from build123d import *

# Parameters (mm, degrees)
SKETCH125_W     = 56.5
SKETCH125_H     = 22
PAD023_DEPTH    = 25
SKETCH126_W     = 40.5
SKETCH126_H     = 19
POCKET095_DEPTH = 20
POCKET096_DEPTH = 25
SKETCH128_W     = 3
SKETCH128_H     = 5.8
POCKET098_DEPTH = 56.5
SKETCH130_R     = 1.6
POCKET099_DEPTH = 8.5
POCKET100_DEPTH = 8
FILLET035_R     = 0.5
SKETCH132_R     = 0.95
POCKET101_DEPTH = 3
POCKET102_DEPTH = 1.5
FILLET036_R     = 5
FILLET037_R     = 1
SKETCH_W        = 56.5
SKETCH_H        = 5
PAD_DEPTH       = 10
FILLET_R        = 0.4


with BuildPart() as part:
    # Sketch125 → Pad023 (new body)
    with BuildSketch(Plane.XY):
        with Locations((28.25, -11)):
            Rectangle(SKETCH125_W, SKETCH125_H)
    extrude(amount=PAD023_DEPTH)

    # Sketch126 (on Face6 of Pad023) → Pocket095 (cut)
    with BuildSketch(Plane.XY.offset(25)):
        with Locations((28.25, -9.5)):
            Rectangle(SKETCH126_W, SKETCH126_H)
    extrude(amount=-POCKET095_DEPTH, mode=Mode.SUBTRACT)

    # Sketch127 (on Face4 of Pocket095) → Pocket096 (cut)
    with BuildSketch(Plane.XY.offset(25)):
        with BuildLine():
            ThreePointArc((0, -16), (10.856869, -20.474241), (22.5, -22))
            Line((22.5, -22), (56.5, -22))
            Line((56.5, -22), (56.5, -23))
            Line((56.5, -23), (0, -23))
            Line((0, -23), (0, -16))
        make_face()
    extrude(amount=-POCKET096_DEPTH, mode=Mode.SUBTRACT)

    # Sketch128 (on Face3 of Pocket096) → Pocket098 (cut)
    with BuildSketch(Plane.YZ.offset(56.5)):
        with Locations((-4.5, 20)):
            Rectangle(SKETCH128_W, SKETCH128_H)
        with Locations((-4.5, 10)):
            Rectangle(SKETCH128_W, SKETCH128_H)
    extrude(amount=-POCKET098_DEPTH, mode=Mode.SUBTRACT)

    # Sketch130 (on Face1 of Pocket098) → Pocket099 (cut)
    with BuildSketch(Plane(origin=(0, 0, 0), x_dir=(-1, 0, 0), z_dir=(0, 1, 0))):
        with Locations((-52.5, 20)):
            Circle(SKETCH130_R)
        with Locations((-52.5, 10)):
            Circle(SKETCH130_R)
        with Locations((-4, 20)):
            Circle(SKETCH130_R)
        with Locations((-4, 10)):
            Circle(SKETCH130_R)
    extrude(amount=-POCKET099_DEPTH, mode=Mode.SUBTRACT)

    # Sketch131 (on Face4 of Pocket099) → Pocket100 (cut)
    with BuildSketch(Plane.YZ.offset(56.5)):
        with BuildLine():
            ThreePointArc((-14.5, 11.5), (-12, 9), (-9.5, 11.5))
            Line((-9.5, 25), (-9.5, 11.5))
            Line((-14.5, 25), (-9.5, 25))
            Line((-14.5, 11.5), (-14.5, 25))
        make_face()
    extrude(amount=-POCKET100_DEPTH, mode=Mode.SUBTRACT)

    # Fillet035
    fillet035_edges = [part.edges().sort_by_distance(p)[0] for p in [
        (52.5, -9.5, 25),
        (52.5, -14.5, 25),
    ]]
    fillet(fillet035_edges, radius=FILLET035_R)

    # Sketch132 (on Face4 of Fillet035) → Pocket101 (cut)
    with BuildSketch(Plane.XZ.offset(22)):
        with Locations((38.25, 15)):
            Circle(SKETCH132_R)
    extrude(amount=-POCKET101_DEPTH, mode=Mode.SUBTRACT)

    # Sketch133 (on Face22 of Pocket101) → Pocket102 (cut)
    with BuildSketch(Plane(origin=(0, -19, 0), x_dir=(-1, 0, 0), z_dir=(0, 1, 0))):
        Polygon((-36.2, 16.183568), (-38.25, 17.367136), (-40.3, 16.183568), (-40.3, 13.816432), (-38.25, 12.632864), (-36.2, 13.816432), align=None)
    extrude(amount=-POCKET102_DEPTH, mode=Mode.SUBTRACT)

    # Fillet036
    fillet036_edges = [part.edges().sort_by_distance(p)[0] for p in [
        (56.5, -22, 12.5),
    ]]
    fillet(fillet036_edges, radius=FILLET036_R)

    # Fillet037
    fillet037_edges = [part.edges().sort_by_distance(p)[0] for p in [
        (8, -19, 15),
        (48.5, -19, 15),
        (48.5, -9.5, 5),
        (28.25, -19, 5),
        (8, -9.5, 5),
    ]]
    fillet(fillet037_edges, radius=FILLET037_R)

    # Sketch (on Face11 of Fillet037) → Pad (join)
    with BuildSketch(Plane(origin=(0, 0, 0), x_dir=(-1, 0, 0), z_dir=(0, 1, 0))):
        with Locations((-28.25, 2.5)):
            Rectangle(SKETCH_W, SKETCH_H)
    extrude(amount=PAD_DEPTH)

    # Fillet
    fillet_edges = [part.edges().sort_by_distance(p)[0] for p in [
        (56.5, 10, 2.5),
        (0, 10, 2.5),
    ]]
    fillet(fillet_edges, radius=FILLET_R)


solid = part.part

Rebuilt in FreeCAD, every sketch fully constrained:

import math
import FreeCAD as App
import Part
import Sketcher
from FreeCAD import Vector
Q = App.Units.Quantity


def edges_at(feature, points):
    """Names of the edges that pass closest to the given points."""
    edges = feature.Shape.Edges
    near = lambda p: min(range(len(edges)), key=lambda i: edges[i].distToShape(Part.Vertex(*p))[0])
    return sorted({f"Edge{near(p) + 1}" for p in points})

doc = App.newDocument("Part")
body = doc.addObject("PartDesign::Body", "Body")

sketch1 = doc.addObject("Sketcher::SketchObject", "Sketch")
body.addObject(sketch1)
sketch1.AttachmentSupport = (doc.XY_Plane, [""])
sketch1.MapMode = "FlatFace"
sketch1.addGeometry([
    Part.LineSegment(Vector(0, 0, 0), Vector(0, -22, 0)),
    Part.LineSegment(Vector(0, -22, 0), Vector(56, -22, 0)),
    Part.LineSegment(Vector(56, -22, 0), Vector(56, 0, 0)),
    Part.LineSegment(Vector(56, 0, 0), Vector(0, 0, 0)),
], False)
sketch1.addConstraint([
    Sketcher.Constraint("Coincident", 0, 2, 1, 1),
    Sketcher.Constraint("Coincident", 1, 2, 2, 1),
    Sketcher.Constraint("Coincident", 2, 2, 3, 1),
    Sketcher.Constraint("Coincident", 3, 2, 0, 1),
    Sketcher.Constraint("Vertical", 0),
    Sketcher.Constraint("Horizontal", 1),
    Sketcher.Constraint("Vertical", 2),
    Sketcher.Constraint("Horizontal", 3),
    Sketcher.Constraint("Coincident", 3, 2, -1, 1),
    Sketcher.Constraint("DistanceY", 0, 2, 0, 1, Q("22 mm")),
    Sketcher.Constraint("DistanceX", 1, 1, 1, 2, Q("56.5 mm")),
])
pad1 = doc.addObject("PartDesign::Pad", "Pad")
body.addObject(pad1)
pad1.Profile = sketch1
pad1.Length = 25

sketch2 = doc.addObject("Sketcher::SketchObject", "Sketch001")
body.addObject(sketch2)
sketch2.AttachmentSupport = (doc.XY_Plane, [""])
sketch2.MapMode = "FlatFace"
sketch2.AttachmentOffset = App.Placement(Vector(0, 0, 25), App.Rotation())
sketch2.addGeometry([
    Part.LineSegment(Vector(8, 0, 0), Vector(8, -19, 0)),
    Part.LineSegment(Vector(8, -19, 0), Vector(48, -19, 0)),
    Part.LineSegment(Vector(48, -19, 0), Vector(48, 0, 0)),
    Part.LineSegment(Vector(48, 0, 0), Vector(8, 0, 0)),
], False)
sketch2.addConstraint([
    Sketcher.Constraint("Coincident", 0, 2, 1, 1),
    Sketcher.Constraint("Coincident", 1, 2, 2, 1),
    Sketcher.Constraint("Coincident", 2, 2, 3, 1),
    Sketcher.Constraint("Coincident", 3, 2, 0, 1),
    Sketcher.Constraint("Vertical", 0),
    Sketcher.Constraint("Horizontal", 1),
    Sketcher.Constraint("Vertical", 2),
    Sketcher.Constraint("Horizontal", 3),
    Sketcher.Constraint("PointOnObject", 2, 2, -1),
    Sketcher.Constraint("DistanceY", 0, 2, 0, 1, Q("19 mm")),
    Sketcher.Constraint("DistanceX", 1, 1, 1, 2, Q("40.5 mm")),
    Sketcher.Constraint("DistanceX", -1, 1, 0, 2, Q("8 mm")),
])
pocket1 = doc.addObject("PartDesign::Pocket", "Pocket")
body.addObject(pocket1)
pocket1.Profile = sketch2
pocket1.Length = 20

sketch3 = doc.addObject("Sketcher::SketchObject", "Sketch002")
body.addObject(sketch3)
sketch3.AttachmentSupport = (doc.XY_Plane, [""])
sketch3.MapMode = "FlatFace"
sketch3.AttachmentOffset = App.Placement(Vector(0, 0, 25), App.Rotation())
sketch3.addGeometry([
    Part.ArcOfCircle(Part.Circle(Vector(22.5, 23.2, 0), Vector(0, 0, 1), 45.2), math.radians(-120), math.radians(-90)),
    Part.LineSegment(Vector(0, -16, 0), Vector(0, -23, 0)),
    Part.LineSegment(Vector(0, -23, 0), Vector(56.5, -23, 0)),
    Part.LineSegment(Vector(56.5, -23, 0), Vector(56.5, -22, 0)),
    Part.LineSegment(Vector(56.5, -22, 0), Vector(22.5, -22, 0)),
], False)
sketch3.addConstraint([
    Sketcher.Constraint("Coincident", 0, 1, 1, 1),
    Sketcher.Constraint("Coincident", 1, 2, 2, 1),
    Sketcher.Constraint("Coincident", 2, 2, 3, 1),
    Sketcher.Constraint("Coincident", 3, 2, 4, 1),
    Sketcher.Constraint("Tangent", 4, 2, 0, 2),
    Sketcher.Constraint("Vertical", 1),
    Sketcher.Constraint("Horizontal", 2),
    Sketcher.Constraint("Vertical", 3),
    Sketcher.Constraint("Horizontal", 4),
    Sketcher.Constraint("PointOnObject", 0, 1, -2),
    Sketcher.Constraint("DistanceX", 4, 2, 4, 1, Q("34 mm")),
    Sketcher.Constraint("DistanceY", 1, 2, 1, 1, Q("7 mm")),
    Sketcher.Constraint("DistanceY", 3, 1, 3, 2, Q("1 mm")),
    Sketcher.Constraint("DistanceX", 2, 1, 2, 2, Q("56.5 mm")),
    Sketcher.Constraint("DistanceY", 0, 1, -1, 1, Q("16 mm")),
])
pocket2 = doc.addObject("PartDesign::Pocket", "Pocket001")
body.addObject(pocket2)
pocket2.Profile = sketch3
pocket2.Length = 25

sketch4 = doc.addObject("Sketcher::SketchObject", "Sketch003")
body.addObject(sketch4)
sketch4.AttachmentSupport = (doc.YZ_Plane, [""])
sketch4.MapMode = "FlatFace"
sketch4.AttachmentOffset = App.Placement(Vector(0, 0, 56.5), App.Rotation())
sketch4.addGeometry([
    Part.LineSegment(Vector(-6, 22.9, 0), Vector(-6, 17.1, 0)),
    Part.LineSegment(Vector(-6, 17.1, 0), Vector(-3, 17.1, 0)),
    Part.LineSegment(Vector(-3, 17.1, 0), Vector(-3, 22.9, 0)),
    Part.LineSegment(Vector(-3, 22.9, 0), Vector(-6, 22.9, 0)),
    Part.LineSegment(Vector(-6, 12.9, 0), Vector(-6, 7.1, 0)),
    Part.LineSegment(Vector(-6, 7.1, 0), Vector(-3, 7.1, 0)),
    Part.LineSegment(Vector(-3, 7.1, 0), Vector(-3, 12.9, 0)),
    Part.LineSegment(Vector(-3, 12.9, 0), Vector(-6, 12.9, 0)),
], False)
sketch4.addConstraint([
    Sketcher.Constraint("Coincident", 0, 2, 1, 1),
    Sketcher.Constraint("Coincident", 1, 2, 2, 1),
    Sketcher.Constraint("Coincident", 2, 2, 3, 1),
    Sketcher.Constraint("Coincident", 3, 2, 0, 1),
    Sketcher.Constraint("Coincident", 4, 2, 5, 1),
    Sketcher.Constraint("Coincident", 5, 2, 6, 1),
    Sketcher.Constraint("Coincident", 6, 2, 7, 1),
    Sketcher.Constraint("Coincident", 7, 2, 4, 1),
    Sketcher.Constraint("Vertical", 0),
    Sketcher.Constraint("Horizontal", 1),
    Sketcher.Constraint("Vertical", 2),
    Sketcher.Constraint("Horizontal", 3),
    Sketcher.Constraint("Vertical", 4),
    Sketcher.Constraint("Horizontal", 5),
    Sketcher.Constraint("Vertical", 6),
    Sketcher.Constraint("Horizontal", 7),
    Sketcher.Constraint("Vertical", 3, 2, 4, 2),
    Sketcher.Constraint("Vertical", 2, 2, 5, 2),
    Sketcher.Constraint("Equal", 2, 4),
    Sketcher.Constraint("DistanceX", 1, 1, 1, 2, Q("3 mm")),
    Sketcher.Constraint("DistanceY", 0, 2, 0, 1, Q("5.8 mm")),
    Sketcher.Constraint("DistanceX", 0, 2, -1, 1, Q("6 mm")),
    Sketcher.Constraint("DistanceY", 4, 2, 0, 2, Q("10 mm")),
    Sketcher.Constraint("DistanceY", -1, 1, 0, 2, Q("17.1 mm")),
])
pocket3 = doc.addObject("PartDesign::Pocket", "Pocket002")
body.addObject(pocket3)
pocket3.Profile = sketch4
pocket3.Length = 56.5

sketch5 = doc.addObject("Sketcher::SketchObject", "Sketch004")
body.addObject(sketch5)
sketch5.AttachmentSupport = (doc.XZ_Plane, [""])
sketch5.MapMode = "FlatFace"
sketch5.addGeometry([
    Part.Circle(Vector(52.5, 20, 0), Vector(0, 0, 1), 1.6),
    Part.Circle(Vector(52.5, 10, 0), Vector(0, 0, 1), 1.6),
    Part.Circle(Vector(4, 20, 0), Vector(0, 0, 1), 1.6),
    Part.Circle(Vector(4, 10, 0), Vector(0, 0, 1), 1.6),
], False)
sketch5.addConstraint([
    Sketcher.Constraint("Equal", 0, 1),
    Sketcher.Constraint("Equal", 1, 2),
    Sketcher.Constraint("Equal", 2, 3),
    Sketcher.Constraint("Horizontal", 0, 3, 2, 3),
    Sketcher.Constraint("Horizontal", 1, 3, 3, 3),
    Sketcher.Constraint("Vertical", 0, 3, 1, 3),
    Sketcher.Constraint("Vertical", 2, 3, 3, 3),
    Sketcher.Constraint("Diameter", 0, Q("3.2 mm")),
    Sketcher.Constraint("DistanceY", -1, 1, 0, 3, Q("20 mm")),
    Sketcher.Constraint("DistanceY", -1, 1, 1, 3, Q("10 mm")),
    Sketcher.Constraint("DistanceX", -1, 1, 2, 3, Q("4 mm")),
    Sketcher.Constraint("DistanceX", -1, 1, 0, 3, Q("52.5 mm")),
])
pocket4 = doc.addObject("PartDesign::Pocket", "Pocket003")
body.addObject(pocket4)
pocket4.Profile = sketch5
pocket4.Length = 8.5
pocket4.Reversed = True

sketch6 = doc.addObject("Sketcher::SketchObject", "Sketch005")
body.addObject(sketch6)
sketch6.AttachmentSupport = (doc.YZ_Plane, [""])
sketch6.MapMode = "FlatFace"
sketch6.AttachmentOffset = App.Placement(Vector(0, 0, 56.5), App.Rotation())
sketch6.addGeometry([
    Part.ArcOfCircle(Part.Circle(Vector(-12, 11.5, 0), Vector(0, 0, 1), 2.5), math.radians(180), math.radians(360)),
    Part.LineSegment(Vector(-9.5, 11.5, 0), Vector(-9.5, 25, 0)),
    Part.LineSegment(Vector(-9.5, 25, 0), Vector(-14.5, 25, 0)),
    Part.LineSegment(Vector(-14.5, 25, 0), Vector(-14.5, 11.5, 0)),
], False)
sketch6.addConstraint([
    Sketcher.Constraint("Tangent", 0, 2, 1, 1),
    Sketcher.Constraint("Coincident", 1, 2, 2, 1),
    Sketcher.Constraint("Coincident", 2, 2, 3, 1),
    Sketcher.Constraint("Tangent", 3, 2, 0, 1),
    Sketcher.Constraint("Vertical", 1),
    Sketcher.Constraint("Horizontal", 2),
    Sketcher.Constraint("Vertical", 3),
    Sketcher.Constraint("Radius", 0, Q("2.5 mm")),
    Sketcher.Constraint("DistanceY", 1, 1, 1, 2, Q("13.5 mm")),
    Sketcher.Constraint("DistanceX", 0, 3, -1, 1, Q("12 mm")),
    Sketcher.Constraint("DistanceY", -1, 1, 1, 2, Q("25 mm")),
])
pocket5 = doc.addObject("PartDesign::Pocket", "Pocket004")
body.addObject(pocket5)
pocket5.Profile = sketch6
pocket5.Length = 8
doc.recompute()

fillet = doc.addObject("PartDesign::Fillet", "Fillet")
body.addObject(fillet)
fillet.Base = (pocket5, edges_at(pocket5, [(52.5, -9.5, 25), (52.5, -14.5, 25)]))
fillet.Radius = 0.5

sketch7 = doc.addObject("Sketcher::SketchObject", "Sketch006")
body.addObject(sketch7)
sketch7.AttachmentSupport = (doc.XZ_Plane, [""])
sketch7.MapMode = "FlatFace"
sketch7.AttachmentOffset = App.Placement(Vector(0, 0, 22), App.Rotation())
sketch7.addGeometry(Part.Circle(Vector(38.2, 15, 0), Vector(0, 0, 1), 0.9), False)
sketch7.addConstraint([
    Sketcher.Constraint("Diameter", 0, Q("1.9 mm")),
    Sketcher.Constraint("DistanceY", -1, 1, 0, 3, Q("15 mm")),
    Sketcher.Constraint("DistanceX", -1, 1, 0, 3, Q("38.25 mm")),
])
pocket6 = doc.addObject("PartDesign::Pocket", "Pocket005")
body.addObject(pocket6)
pocket6.Profile = sketch7
pocket6.Length = 3

sketch8 = doc.addObject("Sketcher::SketchObject", "Sketch007")
body.addObject(sketch8)
sketch8.AttachmentSupport = (doc.XZ_Plane, [""])
sketch8.MapMode = "FlatFace"
sketch8.AttachmentOffset = App.Placement(Vector(0, 0, 19), App.Rotation())
sketch8.addGeometry([
    Part.LineSegment(Vector(36.2, 16.2, 0), Vector(38.2, 17.4, 0)),
    Part.LineSegment(Vector(38.2, 17.4, 0), Vector(40.3, 16.2, 0)),
    Part.LineSegment(Vector(40.3, 16.2, 0), Vector(40.3, 13.8, 0)),
    Part.LineSegment(Vector(40.3, 13.8, 0), Vector(38.2, 12.6, 0)),
    Part.LineSegment(Vector(38.2, 12.6, 0), Vector(36.2, 13.8, 0)),
    Part.LineSegment(Vector(36.2, 13.8, 0), Vector(36.2, 16.2, 0)),
], False)
sketch8.addConstraint([
    Sketcher.Constraint("Coincident", 0, 2, 1, 1),
    Sketcher.Constraint("Coincident", 1, 2, 2, 1),
    Sketcher.Constraint("Coincident", 2, 2, 3, 1),
    Sketcher.Constraint("Coincident", 3, 2, 4, 1),
    Sketcher.Constraint("Coincident", 4, 2, 5, 1),
    Sketcher.Constraint("Coincident", 5, 2, 0, 1),
    Sketcher.Constraint("Vertical", 2),
    Sketcher.Constraint("Vertical", 5),
    Sketcher.Constraint("Parallel", 0, 3),
    Sketcher.Constraint("Parallel", 1, 4),
    Sketcher.Constraint("Horizontal", 2, 2, 4, 2),
    Sketcher.Constraint("Horizontal", 1, 2, 5, 2),
    Sketcher.Constraint("Vertical", 0, 2, 3, 2),
    Sketcher.Constraint("Angle", 0, Q("29.999999 deg")),
    Sketcher.Constraint("DistanceX", -1, 1, 1, 2, Q("40.3 mm")),
    Sketcher.Constraint("DistanceX", -1, 1, 4, 2, Q("36.2 mm")),
    Sketcher.Constraint("DistanceY", 2, 2, 2, 1, Q("2.367136 mm")),
    Sketcher.Constraint("DistanceY", -1, 1, 1, 2, Q("16.183568 mm")),
])
pocket7 = doc.addObject("PartDesign::Pocket", "Pocket006")
body.addObject(pocket7)
pocket7.Profile = sketch8
pocket7.Length = 1.5
pocket7.Reversed = True
doc.recompute()

fillet2 = doc.addObject("PartDesign::Fillet", "Fillet001")
body.addObject(fillet2)
fillet2.Base = (pocket7, edges_at(pocket7, [(56.5, -22, 12.5)]))
fillet2.Radius = 5
doc.recompute()

fillet3 = doc.addObject("PartDesign::Fillet", "Fillet002")
body.addObject(fillet3)
fillet3.Base = (fillet2, edges_at(fillet2, [
    (8, -19, 15),
    (48.5, -19, 15),
    (48.5, -9.5, 5),
    (28.25, -19, 5),
    (8, -9.5, 5),
]))
fillet3.Radius = 1

sketch9 = doc.addObject("Sketcher::SketchObject", "Sketch008")
body.addObject(sketch9)
sketch9.AttachmentSupport = (doc.XZ_Plane, [""])
sketch9.MapMode = "FlatFace"
sketch9.addGeometry([
    Part.LineSegment(Vector(56, 5, 0), Vector(56, 0, 0)),
    Part.LineSegment(Vector(56, 0, 0), Vector(0, 0, 0)),
    Part.LineSegment(Vector(0, 0, 0), Vector(0, 5, 0)),
    Part.LineSegment(Vector(0, 5, 0), Vector(56, 5, 0)),
], False)
sketch9.addConstraint([
    Sketcher.Constraint("Coincident", 0, 2, 1, 1),
    Sketcher.Constraint("Coincident", 1, 2, 2, 1),
    Sketcher.Constraint("Coincident", 2, 2, 3, 1),
    Sketcher.Constraint("Coincident", 3, 2, 0, 1),
    Sketcher.Constraint("Vertical", 0),
    Sketcher.Constraint("Horizontal", 1),
    Sketcher.Constraint("Vertical", 2),
    Sketcher.Constraint("Horizontal", 3),
    Sketcher.Constraint("Coincident", 1, 2, -1, 1),
    Sketcher.Constraint("DistanceY", 0, 2, 0, 1, Q("5 mm")),
    Sketcher.Constraint("DistanceX", 1, 2, 1, 1, Q("56.5 mm")),
])
pad2 = doc.addObject("PartDesign::Pad", "Pad001")
body.addObject(pad2)
pad2.Profile = sketch9
pad2.Length = 10
pad2.Reversed = True
doc.recompute()

fillet4 = doc.addObject("PartDesign::Fillet", "Fillet003")
body.addObject(fillet4)
fillet4.Base = (pad2, edges_at(pad2, [(56.5, 10, 2.5), (0, 10, 2.5)]))
fillet4.Radius = 0.4

doc.recompute()
